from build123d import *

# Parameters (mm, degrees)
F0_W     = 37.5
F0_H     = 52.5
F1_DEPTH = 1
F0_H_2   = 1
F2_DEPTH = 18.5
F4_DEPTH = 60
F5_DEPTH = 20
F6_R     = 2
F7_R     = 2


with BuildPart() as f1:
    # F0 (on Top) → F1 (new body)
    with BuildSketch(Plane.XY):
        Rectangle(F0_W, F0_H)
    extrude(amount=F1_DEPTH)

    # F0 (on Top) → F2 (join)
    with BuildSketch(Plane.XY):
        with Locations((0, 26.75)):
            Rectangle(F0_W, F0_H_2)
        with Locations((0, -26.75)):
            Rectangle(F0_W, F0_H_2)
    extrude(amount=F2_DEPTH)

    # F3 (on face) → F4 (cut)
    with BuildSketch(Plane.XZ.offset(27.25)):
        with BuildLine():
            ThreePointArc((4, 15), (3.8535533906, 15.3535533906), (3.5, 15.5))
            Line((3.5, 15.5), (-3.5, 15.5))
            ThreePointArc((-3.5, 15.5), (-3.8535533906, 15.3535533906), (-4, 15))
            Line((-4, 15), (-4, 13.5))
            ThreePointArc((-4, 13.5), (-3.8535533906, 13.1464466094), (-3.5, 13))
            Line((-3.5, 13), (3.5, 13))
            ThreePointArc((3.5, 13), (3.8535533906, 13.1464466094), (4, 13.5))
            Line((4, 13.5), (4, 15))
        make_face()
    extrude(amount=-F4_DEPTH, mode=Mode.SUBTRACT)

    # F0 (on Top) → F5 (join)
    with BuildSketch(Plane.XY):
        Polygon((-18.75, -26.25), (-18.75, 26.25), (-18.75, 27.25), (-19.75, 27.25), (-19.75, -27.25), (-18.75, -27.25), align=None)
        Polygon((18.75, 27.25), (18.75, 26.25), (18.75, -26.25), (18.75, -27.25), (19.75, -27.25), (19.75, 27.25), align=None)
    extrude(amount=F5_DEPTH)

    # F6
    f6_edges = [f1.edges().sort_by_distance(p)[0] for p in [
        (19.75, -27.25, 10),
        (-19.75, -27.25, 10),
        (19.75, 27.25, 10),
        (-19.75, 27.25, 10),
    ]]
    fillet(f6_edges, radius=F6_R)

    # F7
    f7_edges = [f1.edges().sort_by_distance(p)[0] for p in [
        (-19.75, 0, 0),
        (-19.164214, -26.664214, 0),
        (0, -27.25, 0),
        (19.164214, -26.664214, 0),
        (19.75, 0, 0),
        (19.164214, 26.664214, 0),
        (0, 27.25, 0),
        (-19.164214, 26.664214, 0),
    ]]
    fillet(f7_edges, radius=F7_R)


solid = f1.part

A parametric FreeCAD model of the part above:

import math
import FreeCAD as App
import Part
import Sketcher
Q = App.Units.Quantity


def edges_at(feature, points):
    """Names of the edges that pass closest to the given points."""
    edges = feature.Shape.Edges
    near = lambda p: min(range(len(edges)), key=lambda i: edges[i].distToShape(Part.Vertex(*p))[0])
    return sorted({f"Edge{near(p) + 1}" for p in points})

doc = App.newDocument("Part")
body = doc.addObject("PartDesign::Body", "Body")

# Sketch on XY plane
sketch1 = body.newObject("Sketcher::SketchObject", "Sketch")
sketch1.AttachmentSupport = (doc.getObject("XY_Plane"), [""])
sketch1.MapMode = "FlatFace"
sketch1.addGeometry([
    Part.LineSegment(App.Vector(-18.75, 26.25, 0), App.Vector(-18.75, -26.25, 0)),
    Part.LineSegment(App.Vector(-18.75, -26.25, 0), App.Vector(18.75, -26.25, 0)),
    Part.LineSegment(App.Vector(18.75, -26.25, 0), App.Vector(18.75, 26.25, 0)),
    Part.LineSegment(App.Vector(18.75, 26.25, 0), App.Vector(-18.75, 26.25, 0)),
], False)
sketch1.addConstraint([
    Sketcher.Constraint("Coincident", 0, 2, 1, 1),
    Sketcher.Constraint("Coincident", 1, 2, 2, 1),
    Sketcher.Constraint("Coincident", 2, 2, 3, 1),
    Sketcher.Constraint("Coincident", 3, 2, 0, 1),
    Sketcher.Constraint("Vertical", 0),
    Sketcher.Constraint("Horizontal", 1),
    Sketcher.Constraint("Vertical", 2),
    Sketcher.Constraint("Horizontal", 3),
    Sketcher.Constraint("Symmetric", 0, 2, 2, 2, -1, 1),
    Sketcher.Constraint("DistanceX", 1, 1, 1, 2, Q("37.5 mm")),
    Sketcher.Constraint("DistanceY", 0, 2, 0, 1, Q("52.5 mm")),
])
pad1 = body.newObject("PartDesign::Pad", "Pad")
pad1.Profile = sketch1
pad1.Length = 1

# Sketch on XY plane
sketch2 = body.newObject("Sketcher::SketchObject", "Sketch001")
sketch2.AttachmentSupport = (doc.getObject("XY_Plane"), [""])
sketch2.MapMode = "FlatFace"
sketch2.addGeometry([
    Part.LineSegment(App.Vector(-18.75, 27.25, 0), App.Vector(-18.75, 26.25, 0)),  # 0
    Part.LineSegment(App.Vector(-18.75, 26.25, 0), App.Vector(18.75, 26.25, 0)),  # 1
    Part.LineSegment(App.Vector(18.75, 26.25, 0), App.Vector(18.75, 27.25, 0)),  # 2
    Part.LineSegment(App.Vector(18.75, 27.25, 0), App.Vector(-18.75, 27.25, 0)),  # 3
    Part.LineSegment(App.Vector(-18.75, -26.25, 0), App.Vector(-18.75, -27.25, 0)),  # 4
    Part.LineSegment(App.Vector(-18.75, -27.25, 0), App.Vector(18.75, -27.25, 0)),  # 5
    Part.LineSegment(App.Vector(18.75, -27.25, 0), App.Vector(18.75, -26.25, 0)),  # 6
    Part.LineSegment(App.Vector(18.75, -26.25, 0), App.Vector(-18.75, -26.25, 0)),  # 7
], False)
sketch2.addConstraint([
    Sketcher.Constraint("Coincident", 0, 2, 1, 1),
    Sketcher.Constraint("Coincident", 1, 2, 2, 1),
    Sketcher.Constraint("Coincident", 2, 2, 3, 1),
    Sketcher.Constraint("Coincident", 3, 2, 0, 1),
    Sketcher.Constraint("Coincident", 4, 2, 5, 1),
    Sketcher.Constraint("Coincident", 5, 2, 6, 1),
    Sketcher.Constraint("Coincident", 6, 2, 7, 1),
    Sketcher.Constraint("Coincident", 7, 2, 4, 1),
    Sketcher.Constraint("Vertical", 0),
    Sketcher.Constraint("Horizontal", 1),
    Sketcher.Constraint("Vertical", 2),
    Sketcher.Constraint("Horizontal", 3),
    Sketcher.Constraint("Vertical", 4),
    Sketcher.Constraint("Horizontal", 5),
    Sketcher.Constraint("Vertical", 6),
    Sketcher.Constraint("Horizontal", 7),
    Sketcher.Constraint("Symmetric", 2, 2, 4, 2, -1, 1),
    Sketcher.Constraint("Symmetric", 0, 2, 6, 2, -1, 1),
    Sketcher.Constraint("Vertical", 3, 2, 4, 2),
    Sketcher.Constraint("DistanceY", 0, 2, 0, 1, Q("1 mm")),
    Sketcher.Constraint("DistanceX", 1, 1, 1, 2, Q("37.5 mm")),
    Sketcher.Constraint("DistanceY", 4, 2, 0, 2, Q("53.5 mm")),
])
pad2 = body.newObject("PartDesign::Pad", "Pad001")
pad2.Profile = sketch2
pad2.Length = 18.5

# Sketch on XZ plane
sketch3 = body.newObject("Sketcher::SketchObject", "Sketch002")
sketch3.AttachmentSupport = (doc.getObject("XZ_Plane"), [""])
sketch3.MapMode = "FlatFace"
sketch3.AttachmentOffset = App.Placement(App.Vector(0, 0, 27.25), App.Rotation())
sketch3.addGeometry([
    Part.ArcOfCircle(Part.Circle(App.Vector(3.5, 15, 0), App.Vector(0, 0, 1), 0.5), math.radians(0), math.radians(90)),  # 0
    Part.LineSegment(App.Vector(3.5, 15.5, 0), App.Vector(-3.5, 15.5, 0)),  # 1
    Part.ArcOfCircle(Part.Circle(App.Vector(-3.5, 15, 0), App.Vector(0, 0, 1), 0.5), math.radians(90), math.radians(180)),  # 2
    Part.LineSegment(App.Vector(-4, 15, 0), App.Vector(-4, 13.5, 0)),  # 3
    Part.ArcOfCircle(Part.Circle(App.Vector(-3.5, 13.5, 0), App.Vector(0, 0, 1), 0.5), math.radians(180), math.radians(270)),  # 4
    Part.LineSegment(App.Vector(-3.5, 13, 0), App.Vector(3.5, 13, 0)),  # 5
    Part.ArcOfCircle(Part.Circle(App.Vector(3.5, 13.5, 0), App.Vector(0, 0, 1), 0.5), math.radians(-90), math.radians(0)),  # 6
    Part.LineSegment(App.Vector(4, 13.5, 0), App.Vector(4, 15, 0)),  # 7
], False)
sketch3.addConstraint([
    Sketcher.Constraint("Tangent", 0, 2, 1, 1),
    Sketcher.Constraint("Tangent", 1, 2, 2, 1),
    Sketcher.Constraint("Tangent", 2, 2, 3, 1),
    Sketcher.Constraint("Tangent", 3, 2, 4, 1),
    Sketcher.Constraint("Tangent", 4, 2, 5, 1),
    Sketcher.Constraint("Tangent", 5, 2, 6, 1),
    Sketcher.Constraint("Tangent", 6, 2, 7, 1),
    Sketcher.Constraint("Tangent", 7, 2, 0, 1),
    Sketcher.Constraint("Horizontal", 1),
    Sketcher.Constraint("Vertical", 3),
    Sketcher.Constraint("Horizontal", 5),
    Sketcher.Constraint("Vertical", 7),
    Sketcher.Constraint("Equal", 0, 2),
    Sketcher.Constraint("Equal", 2, 4),
    Sketcher.Constraint("Equal", 4, 6),
    Sketcher.Constraint("Radius", 0, Q("0.5 mm")),
    Sketcher.Constraint("DistanceX", 1, 2, 1, 1, Q("7 mm")),
    Sketcher.Constraint("DistanceY", 3, 2, 3, 1, Q("1.5 mm")),
    Sketcher.Constraint("DistanceY", -1, 1, 0, 3, Q("15 mm")),
    Sketcher.Constraint("DistanceX", 2, 2, -1, 1, Q("4 mm")),
])
pocket1 = body.newObject("PartDesign::Pocket", "Pocket")
pocket1.Profile = sketch3
pocket1.Length = 60

# Sketch on XY plane
sketch4 = body.newObject("Sketcher::SketchObject", "Sketch003")
sketch4.AttachmentSupport = (doc.getObject("XY_Plane"), [""])
sketch4.MapMode = "FlatFace"
sketch4.addGeometry([
    Part.LineSegment(App.Vector(-18.75, 27.25, 0), App.Vector(-19.75, 27.25, 0)),  # 0
    Part.LineSegment(App.Vector(-19.75, 27.25, 0), App.Vector(-19.75, -27.25, 0)),  # 1
    Part.LineSegment(App.Vector(-19.75, -27.25, 0), App.Vector(-18.75, -27.25, 0)),  # 2
    Part.LineSegment(App.Vector(-18.75, -27.25, 0), App.Vector(-18.75, 27.25, 0)),  # 3
    Part.LineSegment(App.Vector(18.75, 27.25, 0), App.Vector(18.75, -27.25, 0)),  # 4
    Part.LineSegment(App.Vector(18.75, -27.25, 0), App.Vector(19.75, -27.25, 0)),  # 5
    Part.LineSegment(App.Vector(19.75, -27.25, 0), App.Vector(19.75, 27.25, 0)),  # 6
    Part.LineSegment(App.Vector(19.75, 27.25, 0), App.Vector(18.75, 27.25, 0)),  # 7
], False)
sketch4.addConstraint([
    Sketcher.Constraint("Coincident", 0, 2, 1, 1),
    Sketcher.Constraint("Coincident", 1, 2, 2, 1),
    Sketcher.Constraint("Coincident", 2, 2, 3, 1),
    Sketcher.Constraint("Coincident", 3, 2, 0, 1),
    Sketcher.Constraint("Coincident", 4, 2, 5, 1),
    Sketcher.Constraint("Coincident", 5, 2, 6, 1),
    Sketcher.Constraint("Coincident", 6, 2, 7, 1),
    Sketcher.Constraint("Coincident", 7, 2, 4, 1),
    Sketcher.Constraint("Horizontal", 0),
    Sketcher.Constraint("Vertical", 1),
    Sketcher.Constraint("Horizontal", 2),
    Sketcher.Constraint("Vertical", 3),
    Sketcher.Constraint("Vertical", 4),
    Sketcher.Constraint("Horizontal", 5),
    Sketcher.Constraint("Vertical", 6),
    Sketcher.Constraint("Horizontal", 7),
    Sketcher.Constraint("Symmetric", 3, 2, 4, 2, -1, 1),
    Sketcher.Constraint("Symmetric", 1, 2, 6, 2, -1, 1),
    Sketcher.Constraint("Horizontal", 2, 2, 4, 2),
    Sketcher.Constraint("DistanceX", 0, 2, 0, 1, Q("1 mm")),
    Sketcher.Constraint("DistanceY", 1, 2, 1, 1, Q("54.5 mm")),
    Sketcher.Constraint("DistanceX", 2, 2, 4, 2, Q("37.5 mm")),
])
pad3 = body.newObject("PartDesign::Pad", "Pad002")
pad3.Profile = sketch4
pad3.Length = 20
doc.recompute()

fillet = body.newObject("PartDesign::Fillet", "Fillet")
fillet.Base = (pad3, edges_at(pad3, [
    (19.75, -27.25, 10),
    (-19.75, -27.25, 10),
    (19.75, 27.25, 10),
    (-19.75, 27.25, 10),
]))
fillet.Radius = 2
doc.recompute()

fillet2 = body.newObject("PartDesign::Fillet", "Fillet001")
fillet2.Base = (fillet, edges_at(fillet, [
    (-19.75, 0, 0),
    (-19.164, -26.664, 0),
    (0, -27.25, 0),
    (19.164, -26.664, 0),
    (19.75, 0, 0),
    (19.164, 26.664, 0),
    (0, 27.25, 0),
    (-19.164, 26.664, 0),
]))
fillet2.Radius = 2

doc.recompute()
